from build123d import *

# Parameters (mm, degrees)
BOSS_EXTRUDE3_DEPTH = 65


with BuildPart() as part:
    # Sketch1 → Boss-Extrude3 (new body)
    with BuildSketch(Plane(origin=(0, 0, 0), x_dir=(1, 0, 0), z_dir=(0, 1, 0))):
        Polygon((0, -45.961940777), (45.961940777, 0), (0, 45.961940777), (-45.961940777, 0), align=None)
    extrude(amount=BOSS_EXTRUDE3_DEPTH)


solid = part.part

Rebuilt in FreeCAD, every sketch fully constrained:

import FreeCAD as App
import Part
import Sketcher


def add_polygon(sketch, points):
    """Adds a closed chain of lines whose ends are joined by coincident constraints."""
    first, n = sketch.GeometryCount, len(points)
    for a, b in zip(points, points[1:] + points[:1]):
        sketch.addGeometry(Part.LineSegment(App.Vector(*a, 0), App.Vector(*b, 0)), False)
    for i in range(n):
        sketch.addConstraint(Sketcher.Constraint("Coincident", first + i, 2, first + (i + 1) % n, 1))

doc = App.newDocument("Part")
body = doc.addObject("PartDesign::Body", "Body")

sketch1 = doc.addObject("Sketcher::SketchObject", "Sketch")
body.addObject(sketch1)
sketch1.AttachmentSupport = (doc.XZ_Plane, [""])
sketch1.MapMode = "FlatFace"
add_polygon(sketch1, [(0, 45.961941), (45.961941, 0), (0, -45.961941), (-45.961941, 0)])
sketch1.addConstraint([
    Sketcher.Constraint("Symmetric", 0, 2, 2, 2, -1, 1),
    Sketcher.Constraint("Symmetric", 1, 2, 3, 2, -1, 1),
    Sketcher.Constraint("PointOnObject", 0, 2, -1),
    Sketcher.Constraint("PointOnObject", 1, 2, -2),
    Sketcher.Constraint("Perpendicular", 0, 1),
    Sketcher.Constraint("Distance", 0, 65.0),
])
pad1 = doc.addObject("PartDesign::Pad", "Pad")
body.addObject(pad1)
pad1.Profile = sketch1
pad1.Length = 65
pad1.Reversed = True

doc.recompute()
